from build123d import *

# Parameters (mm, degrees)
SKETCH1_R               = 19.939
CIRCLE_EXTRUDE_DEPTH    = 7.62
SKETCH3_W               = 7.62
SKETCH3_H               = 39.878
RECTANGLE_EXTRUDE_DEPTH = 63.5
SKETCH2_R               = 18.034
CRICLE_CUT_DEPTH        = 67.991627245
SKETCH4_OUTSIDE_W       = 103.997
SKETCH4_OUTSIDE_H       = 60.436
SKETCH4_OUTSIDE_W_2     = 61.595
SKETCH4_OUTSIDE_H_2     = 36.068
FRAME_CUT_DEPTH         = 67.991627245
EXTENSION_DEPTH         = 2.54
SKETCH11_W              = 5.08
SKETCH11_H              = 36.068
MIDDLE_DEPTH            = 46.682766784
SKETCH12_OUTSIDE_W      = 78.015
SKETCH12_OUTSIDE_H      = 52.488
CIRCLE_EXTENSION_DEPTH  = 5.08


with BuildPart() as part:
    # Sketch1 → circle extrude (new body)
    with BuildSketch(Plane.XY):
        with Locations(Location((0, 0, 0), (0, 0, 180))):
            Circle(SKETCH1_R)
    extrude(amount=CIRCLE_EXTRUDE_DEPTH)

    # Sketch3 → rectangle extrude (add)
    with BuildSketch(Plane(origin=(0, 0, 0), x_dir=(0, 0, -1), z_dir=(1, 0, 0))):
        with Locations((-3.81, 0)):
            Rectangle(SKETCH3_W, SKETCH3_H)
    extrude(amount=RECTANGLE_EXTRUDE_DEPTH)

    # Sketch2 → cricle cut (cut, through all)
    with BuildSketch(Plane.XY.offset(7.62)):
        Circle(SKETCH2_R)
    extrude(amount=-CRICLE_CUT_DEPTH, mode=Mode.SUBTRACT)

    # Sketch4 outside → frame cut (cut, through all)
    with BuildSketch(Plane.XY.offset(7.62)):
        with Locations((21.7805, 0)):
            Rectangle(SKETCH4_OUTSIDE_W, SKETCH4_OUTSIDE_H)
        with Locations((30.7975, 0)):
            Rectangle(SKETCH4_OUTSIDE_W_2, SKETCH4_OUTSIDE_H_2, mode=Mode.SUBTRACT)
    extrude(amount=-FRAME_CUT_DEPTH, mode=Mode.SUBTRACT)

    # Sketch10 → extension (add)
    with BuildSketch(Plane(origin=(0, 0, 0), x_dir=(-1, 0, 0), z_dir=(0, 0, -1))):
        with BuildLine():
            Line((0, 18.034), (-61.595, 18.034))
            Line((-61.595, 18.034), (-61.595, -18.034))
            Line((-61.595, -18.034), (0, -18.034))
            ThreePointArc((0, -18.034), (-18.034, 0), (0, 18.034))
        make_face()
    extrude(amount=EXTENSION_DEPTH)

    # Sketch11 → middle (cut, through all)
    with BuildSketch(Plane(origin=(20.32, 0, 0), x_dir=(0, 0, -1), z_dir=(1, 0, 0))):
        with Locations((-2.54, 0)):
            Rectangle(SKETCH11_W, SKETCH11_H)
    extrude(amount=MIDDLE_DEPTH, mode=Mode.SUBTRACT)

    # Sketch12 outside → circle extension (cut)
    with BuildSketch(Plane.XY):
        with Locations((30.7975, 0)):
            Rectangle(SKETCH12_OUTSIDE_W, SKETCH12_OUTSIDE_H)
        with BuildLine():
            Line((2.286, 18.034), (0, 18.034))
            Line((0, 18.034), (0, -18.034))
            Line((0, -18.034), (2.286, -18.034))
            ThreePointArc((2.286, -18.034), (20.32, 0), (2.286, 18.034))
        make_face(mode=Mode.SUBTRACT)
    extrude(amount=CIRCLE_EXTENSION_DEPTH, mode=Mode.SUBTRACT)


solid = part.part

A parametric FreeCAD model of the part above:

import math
import FreeCAD as App
import Part
import Sketcher
from FreeCAD import Vector
Q = App.Units.Quantity


def add_polygon(sketch, points):
    """Adds a closed chain of lines whose ends are joined by coincident constraints."""
    first, n = sketch.GeometryCount, len(points)
    for a, b in zip(points, points[1:] + points[:1]):
        sketch.addGeometry(Part.LineSegment(App.Vector(*a, 0), App.Vector(*b, 0)), False)
    for i in range(n):
        sketch.addConstraint(Sketcher.Constraint("Coincident", first + i, 2, first + (i + 1) % n, 1))

doc = App.newDocument("Part")
body = doc.addObject("PartDesign::Body", "Body")

# Sketch on XY plane
sketch1 = body.newObject("Sketcher::SketchObject", "Sketch")
sketch1.AttachmentSupport = (doc.getObject("XY_Plane"), [""])
sketch1.MapMode = "FlatFace"
sketch1.addGeometry(Part.Circle(Vector(0, 0, 0), Vector(0, 0, 1), 20), False)
sketch1.addConstraint(Sketcher.Constraint("Coincident", 0, 3, -1, 1))
sketch1.addConstraint(Sketcher.Constraint("Diameter", 0, Q("1.57 in")))
pad1 = body.newObject("PartDesign::Pad", "Pad")
pad1.Profile = sketch1
pad1.Length = Q("0.3 in")

# Sketch on YZ plane
sketch2 = body.newObject("Sketcher::SketchObject", "Sketch001")
sketch2.AttachmentSupport = (doc.getObject("YZ_Plane"), [""])
sketch2.MapMode = "FlatFace"
add_polygon(sketch2, [(20, 8), (-20, 8), (-20, 0), (20, 0)])  # lines 0-3
sketch2.addConstraint(Sketcher.Constraint("Horizontal", 0))
sketch2.addConstraint(Sketcher.Constraint("Vertical", 1))
sketch2.addConstraint(Sketcher.Constraint("Horizontal", 2))
sketch2.addConstraint(Sketcher.Constraint("Vertical", 3))
sketch2.addConstraint(Sketcher.Constraint("Symmetric", 1, 2, 2, 2, -1, 1))
sketch2.addConstraint(Sketcher.Constraint("DistanceY", 1, 2, 1, 1, Q("0.3 in")))
sketch2.addConstraint(Sketcher.Constraint("DistanceX", 0, 2, 0, 1, Q("1.57 in")))
pad2 = body.newObject("PartDesign::Pad", "Pad001")
pad2.Profile = sketch2
pad2.Length = Q("2.5 in")

# Sketch on XY plane
sketch3 = body.newObject("Sketcher::SketchObject", "Sketch002")
sketch3.AttachmentSupport = (doc.getObject("XY_Plane"), [""])
sketch3.MapMode = "FlatFace"
sketch3.AttachmentOffset = App.Placement(Vector(0, 0, 0.3 * 25.4), App.Rotation())
sketch3.addGeometry(Part.Circle(Vector(0, 0, 0), Vector(0, 0, 1), 18), False)
sketch3.addConstraint(Sketcher.Constraint("Coincident", 0, 3, -1, 1))
sketch3.addConstraint(Sketcher.Constraint("Diameter", 0, Q("1.42 in")))
pocket1 = body.newObject("PartDesign::Pocket", "Pocket")
pocket1.Profile = sketch3
pocket1.Type = "ThroughAll"

# Sketch on XY plane
sketch4 = body.newObject("Sketcher::SketchObject", "Sketch003")
sketch4.AttachmentSupport = (doc.getObject("XY_Plane"), [""])
sketch4.MapMode = "FlatFace"
sketch4.AttachmentOffset = App.Placement(Vector(0, 0, 0.3 * 25.4), App.Rotation())
add_polygon(sketch4, [(-30, 30), (-30, -30), (74, -30), (74, 30)])  # lines 0-3
add_polygon(sketch4, [(62, -18), (0, -18), (0, 18), (62, 18)])  # lines 4-7
sketch4.addConstraint(Sketcher.Constraint("Vertical", 0))
sketch4.addConstraint(Sketcher.Constraint("Horizontal", 1))
sketch4.addConstraint(Sketcher.Constraint("Vertical", 2))
sketch4.addConstraint(Sketcher.Constraint("Horizontal", 3))
sketch4.addConstraint(Sketcher.Constraint("Horizontal", 4))
sketch4.addConstraint(Sketcher.Constraint("Vertical", 5))
sketch4.addConstraint(Sketcher.Constraint("Horizontal", 6))
sketch4.addConstraint(Sketcher.Constraint("Vertical", 7))
sketch4.addConstraint(Sketcher.Constraint("Symmetric", 4, 2, 5, 2, -1, 1))
sketch4.addConstraint(Sketcher.Constraint("DistanceY", 5, 1, 5, 2, Q("1.42 in")))
sketch4.addConstraint(Sketcher.Constraint("DistanceX", 4, 2, 4, 1, Q("2.425 in")))
sketch4.addConstraint(Sketcher.Constraint("DistanceX", 1, 1, 1, 2, Q("103.997 mm")))
sketch4.addConstraint(Sketcher.Constraint("DistanceY", 0, 2, 0, 1, Q("60.436 mm")))
sketch4.addConstraint(Sketcher.Constraint("DistanceX", 0, 2, -1, 1, Q("30.218 mm")))
sketch4.addConstraint(Sketcher.Constraint("DistanceY", 0, 2, -1, 1, Q("30.218 mm")))
pocket2 = body.newObject("PartDesign::Pocket", "Pocket001")
pocket2.Profile = sketch4
pocket2.Type = "ThroughAll"

# Sketch on XY plane
sketch5 = body.newObject("Sketcher::SketchObject", "Sketch004")
sketch5.AttachmentSupport = (doc.getObject("XY_Plane"), [""])
sketch5.MapMode = "FlatFace"
sketch5.addGeometry(Part.LineSegment(Vector(0, 18, 0), Vector(62, 18, 0)), False)
sketch5.addGeometry(Part.LineSegment(Vector(62, 18, 0), Vector(62, -18, 0)), False)
sketch5.addGeometry(Part.LineSegment(Vector(62, -18, 0), Vector(0, -18, 0)), False)
sketch5.addGeometry(Part.ArcOfCircle(Part.Circle(Vector(0, 0, 0), Vector(0, 0, 1), 18), math.radians(-90), math.radians(90)), False)
sketch5.addConstraint(Sketcher.Constraint("Coincident", 0, 2, 1, 1))
sketch5.addConstraint(Sketcher.Constraint("Coincident", 1, 2, 2, 1))
sketch5.addConstraint(Sketcher.Constraint("Tangent", 2, 2, 3, 1))
sketch5.addConstraint(Sketcher.Constraint("Tangent", 3, 2, 0, 1))
sketch5.addConstraint(Sketcher.Constraint("Horizontal", 0))
sketch5.addConstraint(Sketcher.Constraint("Vertical", 1))
sketch5.addConstraint(Sketcher.Constraint("Horizontal", 2))
sketch5.addConstraint(Sketcher.Constraint("Coincident", 3, 3, -1, 1))
sketch5.addConstraint(Sketcher.Constraint("Radius", 3, Q("0.71 in")))
sketch5.addConstraint(Sketcher.Constraint("DistanceX", 0, 1, 0, 2, Q("2.425 in")))
pad3 = body.newObject("PartDesign::Pad", "Pad002")
pad3.Profile = sketch5
pad3.Length = Q("0.1 in")
pad3.Reversed = True

# Sketch on YZ plane
sketch6 = body.newObject("Sketcher::SketchObject", "Sketch005")
sketch6.AttachmentSupport = (doc.getObject("YZ_Plane"), [""])
sketch6.MapMode = "FlatFace"
sketch6.AttachmentOffset = App.Placement(Vector(0, 0, 0.8 * 25.4), App.Rotation())
add_polygon(sketch6, [(18, 5), (-18, 5), (-18, 0), (18, 0)])  # lines 0-3
sketch6.addConstraint(Sketcher.Constraint("Horizontal", 0))
sketch6.addConstraint(Sketcher.Constraint("Vertical", 1))
sketch6.addConstraint(Sketcher.Constraint("Horizontal", 2))
sketch6.addConstraint(Sketcher.Constraint("Vertical", 3))
sketch6.addConstraint(Sketcher.Constraint("Symmetric", 1, 2, 2, 2, -1, 1))
sketch6.addConstraint(Sketcher.Constraint("DistanceY", 1, 2, 1, 1, Q("0.2 in")))
sketch6.addConstraint(Sketcher.Constraint("DistanceX", 0, 2, 0, 1, Q("1.42 in")))
pocket3 = body.newObject("PartDesign::Pocket", "Pocket002")
pocket3.Profile = sketch6
pocket3.Type = "ThroughAll"
pocket3.Reversed = True

# Sketch on XY plane
sketch7 = body.newObject("Sketcher::SketchObject", "Sketch006")
sketch7.AttachmentSupport = (doc.getObject("XY_Plane"), [""])
sketch7.MapMode = "FlatFace"
add_polygon(sketch7, [(-8.2, 26.2), (-8.2, -26.2), (69.8, -26.2), (69.8, 26.2)])  # lines 0-3
sketch7.addGeometry(Part.LineSegment(Vector(0, 18, 0), Vector(2.3, 18, 0)), False)  # 4
sketch7.addGeometry(Part.ArcOfCircle(Part.Circle(Vector(2.3, 0, 0), Vector(0, 0, 1), 18), math.radians(-90), math.radians(90)), False)  # 5
sketch7.addGeometry(Part.LineSegment(Vector(2.3, -18, 0), Vector(0, -18, 0)), False)  # 6
sketch7.addGeometry(Part.LineSegment(Vector(0, -18, 0), Vector(0, 18, 0)), False)  # 7
sketch7.addConstraint(Sketcher.Constraint("Tangent", 4, 2, 5, 2))
sketch7.addConstraint(Sketcher.Constraint("Tangent", 5, 1, 6, 1))
sketch7.addConstraint(Sketcher.Constraint("Coincident", 6, 2, 7, 1))
sketch7.addConstraint(Sketcher.Constraint("Coincident", 7, 2, 4, 1))
sketch7.addConstraint(Sketcher.Constraint("Vertical", 0))
sketch7.addConstraint(Sketcher.Constraint("Horizontal", 1))
sketch7.addConstraint(Sketcher.Constraint("Vertical", 2))
sketch7.addConstraint(Sketcher.Constraint("Horizontal", 3))
sketch7.addConstraint(Sketcher.Constraint("Horizontal", 4))
sketch7.addConstraint(Sketcher.Constraint("Horizontal", 6))
sketch7.addConstraint(Sketcher.Constraint("Vertical", 7))
sketch7.addConstraint(Sketcher.Constraint("Symmetric", 6, 2, 7, 2, -1, 1))
sketch7.addConstraint(Sketcher.Constraint("Radius", 5, Q("0.71 in")))
sketch7.addConstraint(Sketcher.Constraint("DistanceX", 4, 1, 4, 2, Q("0.09 in")))
sketch7.addConstraint(Sketcher.Constraint("DistanceX", 1, 1, 1, 2, Q("78.015 mm")))
sketch7.addConstraint(Sketcher.Constraint("DistanceY", 0, 2, 0, 1, Q("52.488 mm")))
sketch7.addConstraint(Sketcher.Constraint("DistanceX", 0, 2, -1, 1, Q("8.21 mm")))
sketch7.addConstraint(Sketcher.Constraint("DistanceY", 0, 2, -1, 1, Q("26.244 mm")))
pocket4 = body.newObject("PartDesign::Pocket", "Pocket003")
pocket4.Profile = sketch7
pocket4.Length = Q("0.2 in")
pocket4.Reversed = True

doc.recompute()
